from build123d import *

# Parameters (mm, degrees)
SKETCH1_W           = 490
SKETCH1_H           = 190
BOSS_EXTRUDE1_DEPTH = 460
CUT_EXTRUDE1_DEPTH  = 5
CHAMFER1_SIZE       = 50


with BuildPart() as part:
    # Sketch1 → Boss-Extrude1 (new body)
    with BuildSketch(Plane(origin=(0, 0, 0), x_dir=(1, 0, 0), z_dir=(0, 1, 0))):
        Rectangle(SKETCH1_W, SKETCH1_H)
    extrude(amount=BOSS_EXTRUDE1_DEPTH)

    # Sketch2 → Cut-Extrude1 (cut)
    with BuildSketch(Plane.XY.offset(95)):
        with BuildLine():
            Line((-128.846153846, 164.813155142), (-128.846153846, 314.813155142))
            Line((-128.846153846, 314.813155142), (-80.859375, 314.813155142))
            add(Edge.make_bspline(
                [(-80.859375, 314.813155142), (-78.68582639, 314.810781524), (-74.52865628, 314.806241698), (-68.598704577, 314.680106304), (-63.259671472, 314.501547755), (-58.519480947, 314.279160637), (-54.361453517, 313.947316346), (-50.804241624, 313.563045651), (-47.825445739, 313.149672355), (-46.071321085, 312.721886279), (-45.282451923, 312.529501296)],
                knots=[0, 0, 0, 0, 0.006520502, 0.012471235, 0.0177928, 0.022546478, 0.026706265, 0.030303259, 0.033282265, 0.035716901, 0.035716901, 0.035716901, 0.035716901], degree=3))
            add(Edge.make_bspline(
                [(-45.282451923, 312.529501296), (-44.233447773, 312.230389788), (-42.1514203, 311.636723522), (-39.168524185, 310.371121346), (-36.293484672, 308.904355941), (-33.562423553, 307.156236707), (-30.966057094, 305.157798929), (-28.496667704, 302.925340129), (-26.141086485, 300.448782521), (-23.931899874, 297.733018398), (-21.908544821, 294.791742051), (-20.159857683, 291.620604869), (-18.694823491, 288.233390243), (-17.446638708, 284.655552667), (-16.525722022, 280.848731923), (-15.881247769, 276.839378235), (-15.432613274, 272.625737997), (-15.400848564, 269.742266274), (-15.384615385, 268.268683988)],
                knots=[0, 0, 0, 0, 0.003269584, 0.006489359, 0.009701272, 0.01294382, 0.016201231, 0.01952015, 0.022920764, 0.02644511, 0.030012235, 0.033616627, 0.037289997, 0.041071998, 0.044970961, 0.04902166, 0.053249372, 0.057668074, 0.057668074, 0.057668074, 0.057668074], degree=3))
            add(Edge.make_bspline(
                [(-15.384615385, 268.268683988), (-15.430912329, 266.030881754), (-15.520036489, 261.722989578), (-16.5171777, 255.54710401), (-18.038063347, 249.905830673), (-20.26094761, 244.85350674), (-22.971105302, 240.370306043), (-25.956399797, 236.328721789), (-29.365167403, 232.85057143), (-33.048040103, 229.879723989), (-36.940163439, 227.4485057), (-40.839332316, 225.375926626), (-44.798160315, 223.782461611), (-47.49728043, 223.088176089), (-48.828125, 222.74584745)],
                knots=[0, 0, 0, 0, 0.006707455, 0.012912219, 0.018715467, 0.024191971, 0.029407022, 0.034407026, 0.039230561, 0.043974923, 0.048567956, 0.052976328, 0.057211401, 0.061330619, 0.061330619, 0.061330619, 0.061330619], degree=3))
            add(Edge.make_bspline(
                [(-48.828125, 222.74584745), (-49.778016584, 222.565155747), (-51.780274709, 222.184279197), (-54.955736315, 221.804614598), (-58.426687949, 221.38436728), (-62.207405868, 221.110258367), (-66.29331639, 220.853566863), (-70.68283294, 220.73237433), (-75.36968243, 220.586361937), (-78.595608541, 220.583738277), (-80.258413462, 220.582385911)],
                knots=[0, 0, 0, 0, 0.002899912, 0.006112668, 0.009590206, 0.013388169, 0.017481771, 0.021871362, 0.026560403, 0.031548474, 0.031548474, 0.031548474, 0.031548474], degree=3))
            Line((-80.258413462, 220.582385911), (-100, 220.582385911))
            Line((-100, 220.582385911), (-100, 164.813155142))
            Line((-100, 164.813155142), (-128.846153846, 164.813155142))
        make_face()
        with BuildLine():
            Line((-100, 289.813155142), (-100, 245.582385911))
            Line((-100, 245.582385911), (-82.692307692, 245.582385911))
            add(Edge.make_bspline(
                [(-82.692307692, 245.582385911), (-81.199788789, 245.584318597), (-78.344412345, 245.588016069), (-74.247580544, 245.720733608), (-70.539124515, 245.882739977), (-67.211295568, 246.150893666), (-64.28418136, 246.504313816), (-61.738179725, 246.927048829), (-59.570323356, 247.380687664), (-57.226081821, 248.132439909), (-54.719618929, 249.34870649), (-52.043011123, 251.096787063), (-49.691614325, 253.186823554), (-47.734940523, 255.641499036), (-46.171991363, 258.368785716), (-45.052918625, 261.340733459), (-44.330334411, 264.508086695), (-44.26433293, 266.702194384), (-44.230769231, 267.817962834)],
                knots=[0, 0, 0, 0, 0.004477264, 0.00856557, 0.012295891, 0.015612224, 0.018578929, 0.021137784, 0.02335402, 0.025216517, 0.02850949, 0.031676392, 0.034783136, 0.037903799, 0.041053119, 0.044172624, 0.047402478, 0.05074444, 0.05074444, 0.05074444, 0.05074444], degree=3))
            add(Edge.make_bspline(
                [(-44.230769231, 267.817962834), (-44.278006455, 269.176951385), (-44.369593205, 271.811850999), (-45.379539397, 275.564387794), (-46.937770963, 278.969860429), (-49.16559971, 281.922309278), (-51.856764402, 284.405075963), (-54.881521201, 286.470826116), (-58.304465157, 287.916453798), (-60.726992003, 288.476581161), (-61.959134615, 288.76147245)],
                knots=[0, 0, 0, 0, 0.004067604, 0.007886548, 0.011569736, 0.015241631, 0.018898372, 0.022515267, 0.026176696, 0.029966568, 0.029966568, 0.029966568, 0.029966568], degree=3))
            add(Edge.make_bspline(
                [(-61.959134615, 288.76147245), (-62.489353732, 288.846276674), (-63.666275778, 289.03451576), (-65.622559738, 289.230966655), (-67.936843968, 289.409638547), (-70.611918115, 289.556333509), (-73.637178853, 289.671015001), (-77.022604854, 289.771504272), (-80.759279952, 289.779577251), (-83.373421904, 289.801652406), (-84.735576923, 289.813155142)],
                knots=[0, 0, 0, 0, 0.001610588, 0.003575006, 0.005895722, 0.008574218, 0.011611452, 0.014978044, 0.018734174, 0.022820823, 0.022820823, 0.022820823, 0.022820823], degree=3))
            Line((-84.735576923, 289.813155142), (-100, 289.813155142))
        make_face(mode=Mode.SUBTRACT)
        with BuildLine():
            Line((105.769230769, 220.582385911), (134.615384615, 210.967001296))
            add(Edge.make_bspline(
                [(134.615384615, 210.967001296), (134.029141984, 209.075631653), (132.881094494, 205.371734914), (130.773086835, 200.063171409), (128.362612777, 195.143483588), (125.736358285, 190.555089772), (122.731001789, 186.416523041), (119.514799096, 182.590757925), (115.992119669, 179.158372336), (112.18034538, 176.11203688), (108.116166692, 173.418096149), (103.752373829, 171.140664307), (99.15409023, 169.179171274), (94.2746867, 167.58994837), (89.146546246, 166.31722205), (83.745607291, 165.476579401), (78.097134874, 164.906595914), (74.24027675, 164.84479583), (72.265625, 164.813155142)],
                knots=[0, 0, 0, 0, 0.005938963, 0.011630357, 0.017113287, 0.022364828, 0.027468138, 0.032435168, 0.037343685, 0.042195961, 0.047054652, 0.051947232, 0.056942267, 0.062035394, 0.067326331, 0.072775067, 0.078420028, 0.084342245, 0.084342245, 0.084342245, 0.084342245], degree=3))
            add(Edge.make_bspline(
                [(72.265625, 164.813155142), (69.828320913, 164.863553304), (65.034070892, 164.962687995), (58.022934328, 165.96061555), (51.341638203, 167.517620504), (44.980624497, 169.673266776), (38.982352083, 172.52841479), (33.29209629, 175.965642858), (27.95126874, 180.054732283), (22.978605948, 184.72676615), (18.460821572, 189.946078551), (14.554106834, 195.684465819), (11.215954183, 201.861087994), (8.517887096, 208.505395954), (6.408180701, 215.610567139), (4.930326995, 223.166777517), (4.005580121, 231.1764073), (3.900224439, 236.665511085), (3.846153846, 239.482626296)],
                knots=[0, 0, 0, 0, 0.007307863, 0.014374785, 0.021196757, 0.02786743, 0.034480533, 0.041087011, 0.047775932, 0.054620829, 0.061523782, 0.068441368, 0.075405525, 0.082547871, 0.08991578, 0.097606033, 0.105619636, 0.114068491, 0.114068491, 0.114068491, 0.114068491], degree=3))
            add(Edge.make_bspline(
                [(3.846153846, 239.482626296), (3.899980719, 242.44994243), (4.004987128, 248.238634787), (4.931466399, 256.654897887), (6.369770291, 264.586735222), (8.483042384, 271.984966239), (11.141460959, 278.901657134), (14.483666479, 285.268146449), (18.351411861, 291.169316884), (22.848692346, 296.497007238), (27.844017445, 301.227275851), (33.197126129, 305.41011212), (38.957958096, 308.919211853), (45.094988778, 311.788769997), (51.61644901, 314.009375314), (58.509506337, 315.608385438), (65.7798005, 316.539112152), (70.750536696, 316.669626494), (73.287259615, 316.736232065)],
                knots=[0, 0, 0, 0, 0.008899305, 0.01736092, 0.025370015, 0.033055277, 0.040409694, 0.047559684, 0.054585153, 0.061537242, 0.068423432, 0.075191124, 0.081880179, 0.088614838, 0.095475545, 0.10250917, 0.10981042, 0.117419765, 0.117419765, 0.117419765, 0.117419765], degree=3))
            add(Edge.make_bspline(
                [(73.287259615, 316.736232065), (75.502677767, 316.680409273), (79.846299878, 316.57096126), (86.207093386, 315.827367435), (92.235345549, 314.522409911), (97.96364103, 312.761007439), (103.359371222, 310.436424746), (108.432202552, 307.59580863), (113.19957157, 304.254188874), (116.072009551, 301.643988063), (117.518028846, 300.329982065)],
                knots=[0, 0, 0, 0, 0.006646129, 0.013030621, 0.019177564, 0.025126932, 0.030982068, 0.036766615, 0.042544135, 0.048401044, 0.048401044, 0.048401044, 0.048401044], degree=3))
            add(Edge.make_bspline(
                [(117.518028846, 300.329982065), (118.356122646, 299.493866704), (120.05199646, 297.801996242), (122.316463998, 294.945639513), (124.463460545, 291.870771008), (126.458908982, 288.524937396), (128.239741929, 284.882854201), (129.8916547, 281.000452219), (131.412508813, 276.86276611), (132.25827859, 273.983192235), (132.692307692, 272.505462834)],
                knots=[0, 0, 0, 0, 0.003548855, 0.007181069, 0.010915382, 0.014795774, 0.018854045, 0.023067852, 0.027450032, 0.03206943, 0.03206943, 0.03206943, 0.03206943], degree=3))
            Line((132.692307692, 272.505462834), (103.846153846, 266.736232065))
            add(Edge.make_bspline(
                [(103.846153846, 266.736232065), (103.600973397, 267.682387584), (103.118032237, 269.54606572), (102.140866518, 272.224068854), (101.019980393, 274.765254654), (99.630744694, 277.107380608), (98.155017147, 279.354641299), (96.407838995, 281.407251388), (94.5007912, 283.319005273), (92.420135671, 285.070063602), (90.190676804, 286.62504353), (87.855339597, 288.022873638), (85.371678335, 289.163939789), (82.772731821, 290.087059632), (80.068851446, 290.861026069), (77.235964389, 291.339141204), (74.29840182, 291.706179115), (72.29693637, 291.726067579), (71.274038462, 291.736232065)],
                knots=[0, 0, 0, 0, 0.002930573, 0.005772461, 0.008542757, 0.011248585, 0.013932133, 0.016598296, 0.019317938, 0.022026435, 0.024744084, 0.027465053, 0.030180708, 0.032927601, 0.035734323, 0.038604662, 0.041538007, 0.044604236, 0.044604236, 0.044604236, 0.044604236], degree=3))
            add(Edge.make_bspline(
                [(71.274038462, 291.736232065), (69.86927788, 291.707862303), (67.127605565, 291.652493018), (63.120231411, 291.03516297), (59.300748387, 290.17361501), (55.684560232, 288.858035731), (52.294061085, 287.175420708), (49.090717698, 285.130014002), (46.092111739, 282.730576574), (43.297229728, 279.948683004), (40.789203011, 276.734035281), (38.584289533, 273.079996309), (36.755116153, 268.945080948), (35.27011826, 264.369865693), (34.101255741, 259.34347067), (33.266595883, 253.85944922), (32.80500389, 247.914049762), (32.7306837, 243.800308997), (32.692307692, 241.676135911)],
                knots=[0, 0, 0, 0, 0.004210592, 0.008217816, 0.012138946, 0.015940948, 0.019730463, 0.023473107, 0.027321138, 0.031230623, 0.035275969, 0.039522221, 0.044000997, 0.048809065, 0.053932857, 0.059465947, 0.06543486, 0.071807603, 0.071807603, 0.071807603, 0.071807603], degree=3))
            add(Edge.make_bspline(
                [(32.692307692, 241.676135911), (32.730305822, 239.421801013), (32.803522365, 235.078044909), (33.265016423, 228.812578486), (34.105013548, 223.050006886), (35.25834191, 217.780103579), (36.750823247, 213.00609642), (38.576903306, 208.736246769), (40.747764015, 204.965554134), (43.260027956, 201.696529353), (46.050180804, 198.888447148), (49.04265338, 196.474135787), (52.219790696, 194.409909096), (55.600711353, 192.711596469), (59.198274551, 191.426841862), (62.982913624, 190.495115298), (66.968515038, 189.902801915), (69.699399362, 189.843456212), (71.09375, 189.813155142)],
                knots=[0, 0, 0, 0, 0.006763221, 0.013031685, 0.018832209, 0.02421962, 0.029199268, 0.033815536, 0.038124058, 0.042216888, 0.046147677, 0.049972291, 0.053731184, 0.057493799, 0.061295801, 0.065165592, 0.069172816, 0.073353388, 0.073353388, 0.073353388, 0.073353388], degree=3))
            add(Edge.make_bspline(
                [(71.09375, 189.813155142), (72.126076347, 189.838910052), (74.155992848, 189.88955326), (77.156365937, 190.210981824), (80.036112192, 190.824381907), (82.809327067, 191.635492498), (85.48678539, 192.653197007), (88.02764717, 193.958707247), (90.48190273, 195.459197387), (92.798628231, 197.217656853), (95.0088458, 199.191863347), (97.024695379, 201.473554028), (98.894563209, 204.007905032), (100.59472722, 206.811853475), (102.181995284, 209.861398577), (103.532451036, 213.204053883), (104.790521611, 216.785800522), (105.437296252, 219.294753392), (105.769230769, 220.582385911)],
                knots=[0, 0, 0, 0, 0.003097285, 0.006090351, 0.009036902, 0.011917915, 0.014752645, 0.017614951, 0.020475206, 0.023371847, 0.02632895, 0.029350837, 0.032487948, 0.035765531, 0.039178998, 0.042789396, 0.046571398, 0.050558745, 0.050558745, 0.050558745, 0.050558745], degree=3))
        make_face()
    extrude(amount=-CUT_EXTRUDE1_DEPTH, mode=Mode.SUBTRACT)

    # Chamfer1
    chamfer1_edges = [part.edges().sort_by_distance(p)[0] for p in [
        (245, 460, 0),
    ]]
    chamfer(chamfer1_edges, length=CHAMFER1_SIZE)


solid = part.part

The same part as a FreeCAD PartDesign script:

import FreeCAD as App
import Part
import Sketcher

V = App.Vector


def edges_at(feature, points):
    """Names of the edges that pass closest to the given points."""
    edges = feature.Shape.Edges
    near = lambda p: min(range(len(edges)), key=lambda i: edges[i].distToShape(Part.Vertex(*p))[0])
    return sorted({f"Edge{near(p) + 1}" for p in points})


def add_polygon(sketch, points):
    """Adds a closed chain of lines whose ends are joined by coincident constraints."""
    first, n = sketch.GeometryCount, len(points)
    for a, b in zip(points, points[1:] + points[:1]):
        sketch.addGeometry(Part.LineSegment(App.Vector(*a, 0), App.Vector(*b, 0)), False)
    for i in range(n):
        sketch.addConstraint(Sketcher.Constraint("Coincident", first + i, 2, first + (i + 1) % n, 1))

doc = App.newDocument("Part")
body = doc.addObject("PartDesign::Body", "Body")

# Sketch on XZ plane
sketch1 = body.newObject("Sketcher::SketchObject", "Sketch")
sketch1.AttachmentSupport = (doc.getObject("XZ_Plane"), [""])
sketch1.MapMode = "FlatFace"
add_polygon(sketch1, [(-245, -95), (-245, 95), (245, 95), (245, -95)])  # lines 0-3
sketch1.addConstraint(Sketcher.Constraint("Vertical", 0))
sketch1.addConstraint(Sketcher.Constraint("Horizontal", 1))
sketch1.addConstraint(Sketcher.Constraint("Vertical", 2))
sketch1.addConstraint(Sketcher.Constraint("Horizontal", 3))
sketch1.addConstraint(Sketcher.Constraint("Symmetric", 0, 2, 2, 2, -1, 1))
sketch1.addConstraint(Sketcher.Constraint("DistanceX", 1, 1, 1, 2, 490.0))
sketch1.addConstraint(Sketcher.Constraint("DistanceY", 0, 1, 0, 2, 190.0))
pad1 = body.newObject("PartDesign::Pad", "Pad")
pad1.Profile = sketch1
pad1.Length = 460
pad1.Reversed = True

# Sketch on XY plane
sketch2 = body.newObject("Sketcher::SketchObject", "Sketch001")
sketch2.AttachmentSupport = (doc.getObject("XY_Plane"), [""])
sketch2.MapMode = "FlatFace"
sketch2.AttachmentOffset = App.Placement(V(0, 0, 95), App.Rotation())
sketch2.addGeometry(Part.LineSegment(V(-128.846154, 314.813155, 0), V(-128.846154, 164.813155, 0)), False)
sketch2.addGeometry(Part.LineSegment(V(-128.846154, 164.813155, 0), V(-100, 164.813155, 0)), False)
sketch2.addGeometry(Part.LineSegment(V(-100, 164.813155, 0), V(-100, 220.582386, 0)), False)
sketch2.addGeometry(Part.LineSegment(V(-100, 220.582386, 0), V(-80.258413, 220.582386, 0)), False)
sketch2.addGeometry(Part.BSplineCurve([V(-48.828125, 222.745847, 0), V(-49.778017, 222.565156, 0), V(-51.780275, 222.184279, 0), V(-54.955736, 221.804615, 0), V(-58.426688, 221.384367, 0), V(-62.207406, 221.110258, 0), V(-66.293316, 220.853567, 0), V(-70.682833, 220.732374, 0), V(-75.369682, 220.586362, 0), V(-78.595609, 220.583738, 0), V(-80.258413, 220.582386, 0)], [4, 1, 1, 1, 1, 1, 1, 1, 4], [0, 0.002899912, 0.006112668, 0.009590206, 0.013388169, 0.017481771, 0.021871362, 0.026560403, 0.031548474], False, 3, [1, 1, 1, 1, 1, 1, 1, 1, 1, 1, 1], False), False)
sketch2.addGeometry(Part.BSplineCurve([V(-15.384615, 268.268684, 0), V(-15.430912, 266.030882, 0), V(-15.520036, 261.72299, 0), V(-16.517178, 255.547104, 0), V(-18.038063, 249.905831, 0), V(-20.260948, 244.853507, 0), V(-22.971105, 240.370306, 0), V(-25.9564, 236.328722, 0), V(-29.365167, 232.850571, 0), V(-33.04804, 229.879724, 0), V(-36.940163, 227.448506, 0), V(-40.839332, 225.375927, 0), V(-44.79816, 223.782462, 0), V(-47.49728, 223.088176, 0), V(-48.828125, 222.745847, 0)], [4, 1, 1, 1, 1, 1, 1, 1, 1, 1, 1, 1, 4], [0, 0.006707455, 0.012912219, 0.018715467, 0.024191971, 0.029407022, 0.034407026, 0.039230561, 0.043974923, 0.048567956, 0.052976328, 0.057211401, 0.061330619], False, 3, [1, 1, 1, 1, 1, 1, 1, 1, 1, 1, 1, 1, 1, 1, 1], False), False)
sketch2.addGeometry(Part.BSplineCurve([V(-45.282452, 312.529501, 0), V(-44.233448, 312.23039, 0), V(-42.15142, 311.636724, 0), V(-39.168524, 310.371121, 0), V(-36.293485, 308.904356, 0), V(-33.562424, 307.156237, 0), V(-30.966057, 305.157799, 0), V(-28.496668, 302.92534, 0), V(-26.141086, 300.448783, 0), V(-23.9319, 297.733018, 0), V(-21.908545, 294.791742, 0), V(-20.159858, 291.620605, 0), V(-18.694823, 288.23339, 0), V(-17.446639, 284.655553, 0), V(-16.525722, 280.848732, 0), V(-15.881248, 276.839378, 0), V(-15.432613, 272.625738, 0), V(-15.400849, 269.742266, 0), V(-15.384615, 268.268684, 0)], [4, 1, 1, 1, 1, 1, 1, 1, 1, 1, 1, 1, 1, 1, 1, 1, 4], [0, 0.003269584, 0.006489359, 0.009701272, 0.01294382, 0.016201231, 0.01952015, 0.022920764, 0.02644511, 0.030012235, 0.033616627, 0.037289997, 0.041071998, 0.044970961, 0.04902166, 0.053249372, 0.057668074], False, 3, [1, 1, 1, 1, 1, 1, 1, 1, 1, 1, 1, 1, 1, 1, 1, 1, 1, 1, 1], False), False)
sketch2.addGeometry(Part.BSplineCurve([V(-80.859375, 314.813155, 0), V(-78.685826, 314.810782, 0), V(-74.528656, 314.806242, 0), V(-68.598705, 314.680106, 0), V(-63.259671, 314.501548, 0), V(-58.519481, 314.279161, 0), V(-54.361454, 313.947316, 0), V(-50.804242, 313.563046, 0), V(-47.825446, 313.149672, 0), V(-46.071321, 312.721886, 0), V(-45.282452, 312.529501, 0)], [4, 1, 1, 1, 1, 1, 1, 1, 4], [0, 0.006520502, 0.012471235, 0.0177928, 0.022546478, 0.026706265, 0.030303259, 0.033282265, 0.035716901], False, 3, [1, 1, 1, 1, 1, 1, 1, 1, 1, 1, 1], False), False)
sketch2.addGeometry(Part.LineSegment(V(-80.859375, 314.813155, 0), V(-128.846154, 314.813155, 0)), False)
sketch2.addGeometry(Part.LineSegment(V(-100, 289.813155, 0), V(-84.735577, 289.813155, 0)), False)
sketch2.addGeometry(Part.BSplineCurve([V(-61.959135, 288.761472, 0), V(-62.489354, 288.846277, 0), V(-63.666276, 289.034516, 0), V(-65.62256, 289.230967, 0), V(-67.936844, 289.409639, 0), V(-70.611918, 289.556334, 0), V(-73.637179, 289.671015, 0), V(-77.022605, 289.771504, 0), V(-80.75928, 289.779577, 0), V(-83.373422, 289.801652, 0), V(-84.735577, 289.813155, 0)], [4, 1, 1, 1, 1, 1, 1, 1, 4], [0, 0.001610588, 0.003575006, 0.005895722, 0.008574218, 0.011611452, 0.014978044, 0.018734174, 0.022820823], False, 3, [1, 1, 1, 1, 1, 1, 1, 1, 1, 1, 1], False), False)
sketch2.addGeometry(Part.BSplineCurve([V(-44.230769, 267.817963, 0), V(-44.278006, 269.176951, 0), V(-44.369593, 271.811851, 0), V(-45.379539, 275.564388, 0), V(-46.937771, 278.96986, 0), V(-49.1656, 281.922309, 0), V(-51.856764, 284.405076, 0), V(-54.881521, 286.470826, 0), V(-58.304465, 287.916454, 0), V(-60.726992, 288.476581, 0), V(-61.959135, 288.761472, 0)], [4, 1, 1, 1, 1, 1, 1, 1, 4], [0, 0.004067604, 0.007886548, 0.011569736, 0.015241631, 0.018898372, 0.022515267, 0.026176696, 0.029966568], False, 3, [1, 1, 1, 1, 1, 1, 1, 1, 1, 1, 1], False), False)
sketch2.addGeometry(Part.BSplineCurve([V(-82.692308, 245.582386, 0), V(-81.199789, 245.584319, 0), V(-78.344412, 245.588016, 0), V(-74.247581, 245.720734, 0), V(-70.539125, 245.88274, 0), V(-67.211296, 246.150894, 0), V(-64.284181, 246.504314, 0), V(-61.73818, 246.927049, 0), V(-59.570323, 247.380688, 0), V(-57.226082, 248.13244, 0), V(-54.719619, 249.348706, 0), V(-52.043011, 251.096787, 0), V(-49.691614, 253.186824, 0), V(-47.734941, 255.641499, 0), V(-46.171991, 258.368786, 0), V(-45.052919, 261.340733, 0), V(-44.330334, 264.508087, 0), V(-44.264333, 266.702194, 0), V(-44.230769, 267.817963, 0)], [4, 1, 1, 1, 1, 1, 1, 1, 1, 1, 1, 1, 1, 1, 1, 1, 4], [0, 0.004477264, 0.00856557, 0.012295891, 0.015612224, 0.018578929, 0.021137784, 0.02335402, 0.025216517, 0.02850949, 0.031676392, 0.034783136, 0.037903799, 0.041053119, 0.044172624, 0.047402478, 0.05074444], False, 3, [1, 1, 1, 1, 1, 1, 1, 1, 1, 1, 1, 1, 1, 1, 1, 1, 1, 1, 1], False), False)
sketch2.addGeometry(Part.LineSegment(V(-82.692308, 245.582386, 0), V(-100, 245.582386, 0)), False)
sketch2.addGeometry(Part.LineSegment(V(-100, 245.582386, 0), V(-100, 289.813155, 0)), False)
sketch2.addGeometry(Part.LineSegment(V(134.615385, 210.967001, 0), V(105.769231, 220.582386, 0)), False)
sketch2.addGeometry(Part.BSplineCurve([V(71.09375, 189.813155, 0), V(72.126076, 189.83891, 0), V(74.155993, 189.889553, 0), V(77.156366, 190.210982, 0), V(80.036112, 190.824382, 0), V(82.809327, 191.635492, 0), V(85.486785, 192.653197, 0), V(88.027647, 193.958707, 0), V(90.481903, 195.459197, 0), V(92.798628, 197.217657, 0), V(95.008846, 199.191863, 0), V(97.024695, 201.473554, 0), V(98.894563, 204.007905, 0), V(100.594727, 206.811853, 0), V(102.181995, 209.861399, 0), V(103.532451, 213.204054, 0), V(104.790522, 216.785801, 0), V(105.437296, 219.294753, 0), V(105.769231, 220.582386, 0)], [4, 1, 1, 1, 1, 1, 1, 1, 1, 1, 1, 1, 1, 1, 1, 1, 4], [0, 0.003097285, 0.006090351, 0.009036902, 0.011917915, 0.014752645, 0.017614951, 0.020475206, 0.023371847, 0.02632895, 0.029350837, 0.032487948, 0.035765531, 0.039178998, 0.042789396, 0.046571398, 0.050558745], False, 3, [1, 1, 1, 1, 1, 1, 1, 1, 1, 1, 1, 1, 1, 1, 1, 1, 1, 1, 1], False), False)
sketch2.addGeometry(Part.BSplineCurve([V(32.692308, 241.676136, 0), V(32.730306, 239.421801, 0), V(32.803522, 235.078045, 0), V(33.265016, 228.812578, 0), V(34.105014, 223.050007, 0), V(35.258342, 217.780104, 0), V(36.750823, 213.006096, 0), V(38.576903, 208.736247, 0), V(40.747764, 204.965554, 0), V(43.260028, 201.696529, 0), V(46.050181, 198.888447, 0), V(49.042653, 196.474136, 0), V(52.219791, 194.409909, 0), V(55.600711, 192.711596, 0), V(59.198275, 191.426842, 0), V(62.982914, 190.495115, 0), V(66.968515, 189.902802, 0), V(69.699399, 189.843456, 0), V(71.09375, 189.813155, 0)], [4, 1, 1, 1, 1, 1, 1, 1, 1, 1, 1, 1, 1, 1, 1, 1, 4], [0, 0.006763221, 0.013031685, 0.018832209, 0.02421962, 0.029199268, 0.033815536, 0.038124058, 0.042216888, 0.046147677, 0.049972291, 0.053731184, 0.057493799, 0.061295801, 0.065165592, 0.069172816, 0.073353388], False, 3, [1, 1, 1, 1, 1, 1, 1, 1, 1, 1, 1, 1, 1, 1, 1, 1, 1, 1, 1], False), False)
sketch2.addGeometry(Part.BSplineCurve([V(71.274038, 291.736232, 0), V(69.869278, 291.707862, 0), V(67.127606, 291.652493, 0), V(63.120231, 291.035163, 0), V(59.300748, 290.173615, 0), V(55.68456, 288.858036, 0), V(52.294061, 287.175421, 0), V(49.090718, 285.130014, 0), V(46.092112, 282.730577, 0), V(43.29723, 279.948683, 0), V(40.789203, 276.734035, 0), V(38.58429, 273.079996, 0), V(36.755116, 268.945081, 0), V(35.270118, 264.369866, 0), V(34.101256, 259.343471, 0), V(33.266596, 253.859449, 0), V(32.805004, 247.91405, 0), V(32.730684, 243.800309, 0), V(32.692308, 241.676136, 0)], [4, 1, 1, 1, 1, 1, 1, 1, 1, 1, 1, 1, 1, 1, 1, 1, 4], [0, 0.004210592, 0.008217816, 0.012138946, 0.015940948, 0.019730463, 0.023473107, 0.027321138, 0.031230623, 0.035275969, 0.039522221, 0.044000997, 0.048809065, 0.053932857, 0.059465947, 0.06543486, 0.071807603], False, 3, [1, 1, 1, 1, 1, 1, 1, 1, 1, 1, 1, 1, 1, 1, 1, 1, 1, 1, 1], False), False)
sketch2.addGeometry(Part.BSplineCurve([V(103.846154, 266.736232, 0), V(103.600973, 267.682388, 0), V(103.118032, 269.546066, 0), V(102.140867, 272.224069, 0), V(101.01998, 274.765255, 0), V(99.630745, 277.107381, 0), V(98.155017, 279.354641, 0), V(96.407839, 281.407251, 0), V(94.500791, 283.319005, 0), V(92.420136, 285.070064, 0), V(90.190677, 286.625044, 0), V(87.85534, 288.022874, 0), V(85.371678, 289.16394, 0), V(82.772732, 290.08706, 0), V(80.068851, 290.861026, 0), V(77.235964, 291.339141, 0), V(74.298402, 291.706179, 0), V(72.296936, 291.726068, 0), V(71.274038, 291.736232, 0)], [4, 1, 1, 1, 1, 1, 1, 1, 1, 1, 1, 1, 1, 1, 1, 1, 4], [0, 0.002930573, 0.005772461, 0.008542757, 0.011248585, 0.013932133, 0.016598296, 0.019317938, 0.022026435, 0.024744084, 0.027465053, 0.030180708, 0.032927601, 0.035734323, 0.038604662, 0.041538007, 0.044604236], False, 3, [1, 1, 1, 1, 1, 1, 1, 1, 1, 1, 1, 1, 1, 1, 1, 1, 1, 1, 1], False), False)
sketch2.addGeometry(Part.LineSegment(V(103.846154, 266.736232, 0), V(132.692308, 272.505463, 0)), False)
sketch2.addGeometry(Part.BSplineCurve([V(117.518029, 300.329982, 0), V(118.356123, 299.493867, 0), V(120.051996, 297.801996, 0), V(122.316464, 294.94564, 0), V(124.463461, 291.870771, 0), V(126.458909, 288.524937, 0), V(128.239742, 284.882854, 0), V(129.891655, 281.000452, 0), V(131.412509, 276.862766, 0), V(132.258279, 273.983192, 0), V(132.692308, 272.505463, 0)], [4, 1, 1, 1, 1, 1, 1, 1, 4], [0, 0.003548855, 0.007181069, 0.010915382, 0.014795774, 0.018854045, 0.023067852, 0.027450032, 0.03206943], False, 3, [1, 1, 1, 1, 1, 1, 1, 1, 1, 1, 1], False), False)
sketch2.addGeometry(Part.BSplineCurve([V(73.28726, 316.736232, 0), V(75.502678, 316.680409, 0), V(79.8463, 316.570961, 0), V(86.207093, 315.827367, 0), V(92.235346, 314.52241, 0), V(97.963641, 312.761007, 0), V(103.359371, 310.436425, 0), V(108.432203, 307.595809, 0), V(113.199572, 304.254189, 0), V(116.07201, 301.643988, 0), V(117.518029, 300.329982, 0)], [4, 1, 1, 1, 1, 1, 1, 1, 4], [0, 0.006646129, 0.013030621, 0.019177564, 0.025126932, 0.030982068, 0.036766615, 0.042544135, 0.048401044], False, 3, [1, 1, 1, 1, 1, 1, 1, 1, 1, 1, 1], False), False)
sketch2.addGeometry(Part.BSplineCurve([V(3.846154, 239.482626, 0), V(3.899981, 242.449942, 0), V(4.004987, 248.238635, 0), V(4.931466, 256.654898, 0), V(6.36977, 264.586735, 0), V(8.483042, 271.984966, 0), V(11.141461, 278.901657, 0), V(14.483666, 285.268146, 0), V(18.351412, 291.169317, 0), V(22.848692, 296.497007, 0), V(27.844017, 301.227276, 0), V(33.197126, 305.410112, 0), V(38.957958, 308.919212, 0), V(45.094989, 311.78877, 0), V(51.616449, 314.009375, 0), V(58.509506, 315.608385, 0), V(65.7798, 316.539112, 0), V(70.750537, 316.669626, 0), V(73.28726, 316.736232, 0)], [4, 1, 1, 1, 1, 1, 1, 1, 1, 1, 1, 1, 1, 1, 1, 1, 4], [0, 0.008899305, 0.01736092, 0.025370015, 0.033055277, 0.040409694, 0.047559684, 0.054585153, 0.061537242, 0.068423432, 0.075191124, 0.081880179, 0.088614838, 0.095475545, 0.10250917, 0.10981042, 0.117419765], False, 3, [1, 1, 1, 1, 1, 1, 1, 1, 1, 1, 1, 1, 1, 1, 1, 1, 1, 1, 1], False), False)
sketch2.addGeometry(Part.BSplineCurve([V(72.265625, 164.813155, 0), V(69.828321, 164.863553, 0), V(65.034071, 164.962688, 0), V(58.022934, 165.960616, 0), V(51.341638, 167.517621, 0), V(44.980624, 169.673267, 0), V(38.982352, 172.528415, 0), V(33.292096, 175.965643, 0), V(27.951269, 180.054732, 0), V(22.978606, 184.726766, 0), V(18.460822, 189.946079, 0), V(14.554107, 195.684466, 0), V(11.215954, 201.861088, 0), V(8.517887, 208.505396, 0), V(6.408181, 215.610567, 0), V(4.930327, 223.166778, 0), V(4.00558, 231.176407, 0), V(3.900224, 236.665511, 0), V(3.846154, 239.482626, 0)], [4, 1, 1, 1, 1, 1, 1, 1, 1, 1, 1, 1, 1, 1, 1, 1, 4], [0, 0.007307863, 0.014374785, 0.021196757, 0.02786743, 0.034480533, 0.041087011, 0.047775932, 0.054620829, 0.061523782, 0.068441368, 0.075405525, 0.082547871, 0.08991578, 0.097606033, 0.105619636, 0.114068491], False, 3, [1, 1, 1, 1, 1, 1, 1, 1, 1, 1, 1, 1, 1, 1, 1, 1, 1, 1, 1], False), False)
sketch2.addGeometry(Part.BSplineCurve([V(134.615385, 210.967001, 0), V(134.029142, 209.075632, 0), V(132.881094, 205.371735, 0), V(130.773087, 200.063171, 0), V(128.362613, 195.143484, 0), V(125.736358, 190.55509, 0), V(122.731002, 186.416523, 0), V(119.514799, 182.590758, 0), V(115.99212, 179.158372, 0), V(112.180345, 176.112037, 0), V(108.116167, 173.418096, 0), V(103.752374, 171.140664, 0), V(99.15409, 169.179171, 0), V(94.274687, 167.589948, 0), V(89.146546, 166.317222, 0), V(83.745607, 165.476579, 0), V(78.097135, 164.906596, 0), V(74.240277, 164.844796, 0), V(72.265625, 164.813155, 0)], [4, 1, 1, 1, 1, 1, 1, 1, 1, 1, 1, 1, 1, 1, 1, 1, 4], [0, 0.005938963, 0.011630357, 0.017113287, 0.022364828, 0.027468138, 0.032435168, 0.037343685, 0.042195961, 0.047054652, 0.051947232, 0.056942267, 0.062035394, 0.067326331, 0.072775067, 0.078420028, 0.084342245], False, 3, [1, 1, 1, 1, 1, 1, 1, 1, 1, 1, 1, 1, 1, 1, 1, 1, 1, 1, 1], False), False)
sketch2.addConstraint(Sketcher.Constraint("Block", 4))
sketch2.addConstraint(Sketcher.Constraint("Block", 5))
sketch2.addConstraint(Sketcher.Constraint("Block", 6))
sketch2.addConstraint(Sketcher.Constraint("Block", 7))
sketch2.addConstraint(Sketcher.Constraint("Block", 10))
sketch2.addConstraint(Sketcher.Constraint("Block", 11))
sketch2.addConstraint(Sketcher.Constraint("Block", 12))
sketch2.addConstraint(Sketcher.Constraint("Block", 16))
sketch2.addConstraint(Sketcher.Constraint("Block", 17))
sketch2.addConstraint(Sketcher.Constraint("Block", 18))
sketch2.addConstraint(Sketcher.Constraint("Block", 19))
sketch2.addConstraint(Sketcher.Constraint("Block", 21))
sketch2.addConstraint(Sketcher.Constraint("Block", 22))
sketch2.addConstraint(Sketcher.Constraint("Block", 23))
sketch2.addConstraint(Sketcher.Constraint("Block", 24))
sketch2.addConstraint(Sketcher.Constraint("Block", 25))
sketch2.addConstraint(Sketcher.Constraint("Coincident", 0, 2, 1, 1))
sketch2.addConstraint(Sketcher.Constraint("Coincident", 1, 2, 2, 1))
sketch2.addConstraint(Sketcher.Constraint("Coincident", 2, 2, 3, 1))
sketch2.addConstraint(Sketcher.Constraint("Coincident", 3, 2, 4, 2))
sketch2.addConstraint(Sketcher.Constraint("Coincident", 7, 1, 8, 1))
sketch2.addConstraint(Sketcher.Constraint("Coincident", 8, 2, 0, 1))
sketch2.addConstraint(Sketcher.Constraint("Coincident", 9, 2, 10, 2))
sketch2.addConstraint(Sketcher.Constraint("Coincident", 12, 1, 13, 1))
sketch2.addConstraint(Sketcher.Constraint("Coincident", 13, 2, 14, 1))
sketch2.addConstraint(Sketcher.Constraint("Coincident", 14, 2, 9, 1))
sketch2.addConstraint(Sketcher.Constraint("Coincident", 15, 2, 16, 2))
sketch2.addConstraint(Sketcher.Constraint("Coincident", 19, 1, 20, 1))
sketch2.addConstraint(Sketcher.Constraint("Coincident", 20, 2, 21, 2))
sketch2.addConstraint(Sketcher.Constraint("Coincident", 25, 1, 15, 1))
sketch2.addConstraint(Sketcher.Constraint("Vertical", 0))
sketch2.addConstraint(Sketcher.Constraint("Horizontal", 1))
sketch2.addConstraint(Sketcher.Constraint("Vertical", 2))
sketch2.addConstraint(Sketcher.Constraint("Horizontal", 3))
sketch2.addConstraint(Sketcher.Constraint("Horizontal", 8))
sketch2.addConstraint(Sketcher.Constraint("Horizontal", 9))
sketch2.addConstraint(Sketcher.Constraint("Horizontal", 13))
sketch2.addConstraint(Sketcher.Constraint("Vertical", 14))
sketch2.addConstraint(Sketcher.Constraint("Vertical", 2, 2, 13, 2))
sketch2.addConstraint(Sketcher.Constraint("DistanceY", 0, 2, 0, 1, 150.0))
sketch2.addConstraint(Sketcher.Constraint("DistanceX", 1, 2, -1, 1, 100.0))
sketch2.addConstraint(Sketcher.Constraint("DistanceX", 8, 2, 8, 1, 47.986779))
pocket1 = body.newObject("PartDesign::Pocket", "Pocket")
pocket1.Profile = sketch2
pocket1.Length = 5
doc.recompute()

chamfer = body.newObject("PartDesign::Chamfer", "Chamfer")
chamfer.Base = (pocket1, edges_at(pocket1, [(245, 460, 0)]))
chamfer.Size = 50

doc.recompute()
